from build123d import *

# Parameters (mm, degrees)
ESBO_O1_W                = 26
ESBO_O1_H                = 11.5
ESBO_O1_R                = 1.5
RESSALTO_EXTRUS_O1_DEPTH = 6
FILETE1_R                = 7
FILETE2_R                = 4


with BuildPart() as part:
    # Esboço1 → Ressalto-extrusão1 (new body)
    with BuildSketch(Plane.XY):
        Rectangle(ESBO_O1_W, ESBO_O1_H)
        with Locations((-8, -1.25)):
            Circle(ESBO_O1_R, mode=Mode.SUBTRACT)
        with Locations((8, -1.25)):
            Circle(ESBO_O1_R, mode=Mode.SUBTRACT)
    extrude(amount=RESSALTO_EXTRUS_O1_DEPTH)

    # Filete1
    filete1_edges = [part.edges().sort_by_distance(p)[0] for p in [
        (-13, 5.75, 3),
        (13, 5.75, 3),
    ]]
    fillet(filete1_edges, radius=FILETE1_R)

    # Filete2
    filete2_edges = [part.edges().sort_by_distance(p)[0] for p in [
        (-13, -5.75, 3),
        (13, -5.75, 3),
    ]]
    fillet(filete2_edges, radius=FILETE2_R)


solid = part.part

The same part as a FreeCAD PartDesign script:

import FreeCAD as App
import Part
import Sketcher

V = App.Vector
Q = App.Units.Quantity


def edges_at(feature, points):
    """Names of the edges that pass closest to the given points."""
    edges = feature.Shape.Edges
    near = lambda p: min(range(len(edges)), key=lambda i: edges[i].distToShape(Part.Vertex(*p))[0])
    return sorted({f"Edge{near(p) + 1}" for p in points})

doc = App.newDocument("Part")
params = doc.addObject("Spreadsheet::Sheet", "Params")
for row, (alias, value) in enumerate([
    ("sketch1_diameter", "3 mm"),
    ("sketch1_width", "26 mm"),
    ("sketch1_height", "11.5 mm"),
    ("pad1_length", "6 mm"),
    ("fillet_radius", "7 mm"),
    ("fillet2_radius", "4 mm"),
], start=1):
    params.set(f"A{row}", alias)
    params.set(f"B{row}", "=" + value)
    params.setAlias(f"B{row}", alias)

body = doc.addObject("PartDesign::Body", "Body")

# Sketch on XY plane
sketch1 = doc.addObject("Sketcher::SketchObject", "Sketch")
body.addObject(sketch1)
sketch1.AttachmentSupport = (doc.XY_Plane, [""])
sketch1.MapMode = "FlatFace"
sketch1.addGeometry(Part.LineSegment(V(-13, 5.8, 0), V(-13, -5.8, 0)), False)
sketch1.addGeometry(Part.LineSegment(V(-13, -5.8, 0), V(13, -5.8, 0)), False)
sketch1.addGeometry(Part.LineSegment(V(13, -5.8, 0), V(13, 5.8, 0)), False)
sketch1.addGeometry(Part.LineSegment(V(13, 5.8, 0), V(-13, 5.8, 0)), False)
sketch1.addGeometry(Part.Circle(V(-8, -1.2, 0), V(0, 0, 1), 1.5), False)
sketch1.addGeometry(Part.Circle(V(8, -1.2, 0), V(0, 0, 1), 1.5), False)
sketch1.addConstraint(Sketcher.Constraint("Coincident", 0, 2, 1, 1))
sketch1.addConstraint(Sketcher.Constraint("Coincident", 1, 2, 2, 1))
sketch1.addConstraint(Sketcher.Constraint("Coincident", 2, 2, 3, 1))
sketch1.addConstraint(Sketcher.Constraint("Coincident", 3, 2, 0, 1))
sketch1.addConstraint(Sketcher.Constraint("Vertical", 0))
sketch1.addConstraint(Sketcher.Constraint("Horizontal", 1))
sketch1.addConstraint(Sketcher.Constraint("Vertical", 2))
sketch1.addConstraint(Sketcher.Constraint("Horizontal", 3))
sketch1.addConstraint(Sketcher.Constraint("Equal", 4, 5))
sketch1.addConstraint(Sketcher.Constraint("Symmetric", 0, 2, 2, 2, -1, 1))
sketch1.addConstraint(Sketcher.Constraint("Symmetric", 4, 3, 5, 3, -2))
sketch1.addConstraint(Sketcher.Constraint("Diameter", 4, Q("3 mm")))
sketch1.addConstraint(Sketcher.Constraint("DistanceX", 1, 1, 1, 2, Q("26 mm")))
sketch1.addConstraint(Sketcher.Constraint("DistanceY", 0, 2, 0, 1, Q("11.5 mm")))
sketch1.addConstraint(Sketcher.Constraint("DistanceX", 4, 3, -1, 1, Q("8 mm")))
sketch1.addConstraint(Sketcher.Constraint("DistanceY", 5, 3, 2, 2, Q("7 mm")))
sketch1.setExpression("Constraints[11]", "Params.sketch1_diameter")
sketch1.setExpression("Constraints[12]", "Params.sketch1_width")
sketch1.setExpression("Constraints[13]", "Params.sketch1_height")
pad1 = doc.addObject("PartDesign::Pad", "Pad")
body.addObject(pad1)
pad1.Profile = sketch1
pad1.setExpression("Length", "Params.pad1_length")
doc.recompute()

fillet = doc.addObject("PartDesign::Fillet", "Fillet")
body.addObject(fillet)
fillet.Base = (pad1, edges_at(pad1, [(-13, 5.75, 3), (13, 5.75, 3)]))
fillet.setExpression("Radius", "Params.fillet_radius")
doc.recompute()

fillet2 = doc.addObject("PartDesign::Fillet", "Fillet001")
body.addObject(fillet2)
fillet2.Base = (fillet, edges_at(fillet, [(-13, -5.75, 3), (13, -5.75, 3)]))
fillet2.setExpression("Radius", "Params.fillet2_radius")

doc.recompute()
